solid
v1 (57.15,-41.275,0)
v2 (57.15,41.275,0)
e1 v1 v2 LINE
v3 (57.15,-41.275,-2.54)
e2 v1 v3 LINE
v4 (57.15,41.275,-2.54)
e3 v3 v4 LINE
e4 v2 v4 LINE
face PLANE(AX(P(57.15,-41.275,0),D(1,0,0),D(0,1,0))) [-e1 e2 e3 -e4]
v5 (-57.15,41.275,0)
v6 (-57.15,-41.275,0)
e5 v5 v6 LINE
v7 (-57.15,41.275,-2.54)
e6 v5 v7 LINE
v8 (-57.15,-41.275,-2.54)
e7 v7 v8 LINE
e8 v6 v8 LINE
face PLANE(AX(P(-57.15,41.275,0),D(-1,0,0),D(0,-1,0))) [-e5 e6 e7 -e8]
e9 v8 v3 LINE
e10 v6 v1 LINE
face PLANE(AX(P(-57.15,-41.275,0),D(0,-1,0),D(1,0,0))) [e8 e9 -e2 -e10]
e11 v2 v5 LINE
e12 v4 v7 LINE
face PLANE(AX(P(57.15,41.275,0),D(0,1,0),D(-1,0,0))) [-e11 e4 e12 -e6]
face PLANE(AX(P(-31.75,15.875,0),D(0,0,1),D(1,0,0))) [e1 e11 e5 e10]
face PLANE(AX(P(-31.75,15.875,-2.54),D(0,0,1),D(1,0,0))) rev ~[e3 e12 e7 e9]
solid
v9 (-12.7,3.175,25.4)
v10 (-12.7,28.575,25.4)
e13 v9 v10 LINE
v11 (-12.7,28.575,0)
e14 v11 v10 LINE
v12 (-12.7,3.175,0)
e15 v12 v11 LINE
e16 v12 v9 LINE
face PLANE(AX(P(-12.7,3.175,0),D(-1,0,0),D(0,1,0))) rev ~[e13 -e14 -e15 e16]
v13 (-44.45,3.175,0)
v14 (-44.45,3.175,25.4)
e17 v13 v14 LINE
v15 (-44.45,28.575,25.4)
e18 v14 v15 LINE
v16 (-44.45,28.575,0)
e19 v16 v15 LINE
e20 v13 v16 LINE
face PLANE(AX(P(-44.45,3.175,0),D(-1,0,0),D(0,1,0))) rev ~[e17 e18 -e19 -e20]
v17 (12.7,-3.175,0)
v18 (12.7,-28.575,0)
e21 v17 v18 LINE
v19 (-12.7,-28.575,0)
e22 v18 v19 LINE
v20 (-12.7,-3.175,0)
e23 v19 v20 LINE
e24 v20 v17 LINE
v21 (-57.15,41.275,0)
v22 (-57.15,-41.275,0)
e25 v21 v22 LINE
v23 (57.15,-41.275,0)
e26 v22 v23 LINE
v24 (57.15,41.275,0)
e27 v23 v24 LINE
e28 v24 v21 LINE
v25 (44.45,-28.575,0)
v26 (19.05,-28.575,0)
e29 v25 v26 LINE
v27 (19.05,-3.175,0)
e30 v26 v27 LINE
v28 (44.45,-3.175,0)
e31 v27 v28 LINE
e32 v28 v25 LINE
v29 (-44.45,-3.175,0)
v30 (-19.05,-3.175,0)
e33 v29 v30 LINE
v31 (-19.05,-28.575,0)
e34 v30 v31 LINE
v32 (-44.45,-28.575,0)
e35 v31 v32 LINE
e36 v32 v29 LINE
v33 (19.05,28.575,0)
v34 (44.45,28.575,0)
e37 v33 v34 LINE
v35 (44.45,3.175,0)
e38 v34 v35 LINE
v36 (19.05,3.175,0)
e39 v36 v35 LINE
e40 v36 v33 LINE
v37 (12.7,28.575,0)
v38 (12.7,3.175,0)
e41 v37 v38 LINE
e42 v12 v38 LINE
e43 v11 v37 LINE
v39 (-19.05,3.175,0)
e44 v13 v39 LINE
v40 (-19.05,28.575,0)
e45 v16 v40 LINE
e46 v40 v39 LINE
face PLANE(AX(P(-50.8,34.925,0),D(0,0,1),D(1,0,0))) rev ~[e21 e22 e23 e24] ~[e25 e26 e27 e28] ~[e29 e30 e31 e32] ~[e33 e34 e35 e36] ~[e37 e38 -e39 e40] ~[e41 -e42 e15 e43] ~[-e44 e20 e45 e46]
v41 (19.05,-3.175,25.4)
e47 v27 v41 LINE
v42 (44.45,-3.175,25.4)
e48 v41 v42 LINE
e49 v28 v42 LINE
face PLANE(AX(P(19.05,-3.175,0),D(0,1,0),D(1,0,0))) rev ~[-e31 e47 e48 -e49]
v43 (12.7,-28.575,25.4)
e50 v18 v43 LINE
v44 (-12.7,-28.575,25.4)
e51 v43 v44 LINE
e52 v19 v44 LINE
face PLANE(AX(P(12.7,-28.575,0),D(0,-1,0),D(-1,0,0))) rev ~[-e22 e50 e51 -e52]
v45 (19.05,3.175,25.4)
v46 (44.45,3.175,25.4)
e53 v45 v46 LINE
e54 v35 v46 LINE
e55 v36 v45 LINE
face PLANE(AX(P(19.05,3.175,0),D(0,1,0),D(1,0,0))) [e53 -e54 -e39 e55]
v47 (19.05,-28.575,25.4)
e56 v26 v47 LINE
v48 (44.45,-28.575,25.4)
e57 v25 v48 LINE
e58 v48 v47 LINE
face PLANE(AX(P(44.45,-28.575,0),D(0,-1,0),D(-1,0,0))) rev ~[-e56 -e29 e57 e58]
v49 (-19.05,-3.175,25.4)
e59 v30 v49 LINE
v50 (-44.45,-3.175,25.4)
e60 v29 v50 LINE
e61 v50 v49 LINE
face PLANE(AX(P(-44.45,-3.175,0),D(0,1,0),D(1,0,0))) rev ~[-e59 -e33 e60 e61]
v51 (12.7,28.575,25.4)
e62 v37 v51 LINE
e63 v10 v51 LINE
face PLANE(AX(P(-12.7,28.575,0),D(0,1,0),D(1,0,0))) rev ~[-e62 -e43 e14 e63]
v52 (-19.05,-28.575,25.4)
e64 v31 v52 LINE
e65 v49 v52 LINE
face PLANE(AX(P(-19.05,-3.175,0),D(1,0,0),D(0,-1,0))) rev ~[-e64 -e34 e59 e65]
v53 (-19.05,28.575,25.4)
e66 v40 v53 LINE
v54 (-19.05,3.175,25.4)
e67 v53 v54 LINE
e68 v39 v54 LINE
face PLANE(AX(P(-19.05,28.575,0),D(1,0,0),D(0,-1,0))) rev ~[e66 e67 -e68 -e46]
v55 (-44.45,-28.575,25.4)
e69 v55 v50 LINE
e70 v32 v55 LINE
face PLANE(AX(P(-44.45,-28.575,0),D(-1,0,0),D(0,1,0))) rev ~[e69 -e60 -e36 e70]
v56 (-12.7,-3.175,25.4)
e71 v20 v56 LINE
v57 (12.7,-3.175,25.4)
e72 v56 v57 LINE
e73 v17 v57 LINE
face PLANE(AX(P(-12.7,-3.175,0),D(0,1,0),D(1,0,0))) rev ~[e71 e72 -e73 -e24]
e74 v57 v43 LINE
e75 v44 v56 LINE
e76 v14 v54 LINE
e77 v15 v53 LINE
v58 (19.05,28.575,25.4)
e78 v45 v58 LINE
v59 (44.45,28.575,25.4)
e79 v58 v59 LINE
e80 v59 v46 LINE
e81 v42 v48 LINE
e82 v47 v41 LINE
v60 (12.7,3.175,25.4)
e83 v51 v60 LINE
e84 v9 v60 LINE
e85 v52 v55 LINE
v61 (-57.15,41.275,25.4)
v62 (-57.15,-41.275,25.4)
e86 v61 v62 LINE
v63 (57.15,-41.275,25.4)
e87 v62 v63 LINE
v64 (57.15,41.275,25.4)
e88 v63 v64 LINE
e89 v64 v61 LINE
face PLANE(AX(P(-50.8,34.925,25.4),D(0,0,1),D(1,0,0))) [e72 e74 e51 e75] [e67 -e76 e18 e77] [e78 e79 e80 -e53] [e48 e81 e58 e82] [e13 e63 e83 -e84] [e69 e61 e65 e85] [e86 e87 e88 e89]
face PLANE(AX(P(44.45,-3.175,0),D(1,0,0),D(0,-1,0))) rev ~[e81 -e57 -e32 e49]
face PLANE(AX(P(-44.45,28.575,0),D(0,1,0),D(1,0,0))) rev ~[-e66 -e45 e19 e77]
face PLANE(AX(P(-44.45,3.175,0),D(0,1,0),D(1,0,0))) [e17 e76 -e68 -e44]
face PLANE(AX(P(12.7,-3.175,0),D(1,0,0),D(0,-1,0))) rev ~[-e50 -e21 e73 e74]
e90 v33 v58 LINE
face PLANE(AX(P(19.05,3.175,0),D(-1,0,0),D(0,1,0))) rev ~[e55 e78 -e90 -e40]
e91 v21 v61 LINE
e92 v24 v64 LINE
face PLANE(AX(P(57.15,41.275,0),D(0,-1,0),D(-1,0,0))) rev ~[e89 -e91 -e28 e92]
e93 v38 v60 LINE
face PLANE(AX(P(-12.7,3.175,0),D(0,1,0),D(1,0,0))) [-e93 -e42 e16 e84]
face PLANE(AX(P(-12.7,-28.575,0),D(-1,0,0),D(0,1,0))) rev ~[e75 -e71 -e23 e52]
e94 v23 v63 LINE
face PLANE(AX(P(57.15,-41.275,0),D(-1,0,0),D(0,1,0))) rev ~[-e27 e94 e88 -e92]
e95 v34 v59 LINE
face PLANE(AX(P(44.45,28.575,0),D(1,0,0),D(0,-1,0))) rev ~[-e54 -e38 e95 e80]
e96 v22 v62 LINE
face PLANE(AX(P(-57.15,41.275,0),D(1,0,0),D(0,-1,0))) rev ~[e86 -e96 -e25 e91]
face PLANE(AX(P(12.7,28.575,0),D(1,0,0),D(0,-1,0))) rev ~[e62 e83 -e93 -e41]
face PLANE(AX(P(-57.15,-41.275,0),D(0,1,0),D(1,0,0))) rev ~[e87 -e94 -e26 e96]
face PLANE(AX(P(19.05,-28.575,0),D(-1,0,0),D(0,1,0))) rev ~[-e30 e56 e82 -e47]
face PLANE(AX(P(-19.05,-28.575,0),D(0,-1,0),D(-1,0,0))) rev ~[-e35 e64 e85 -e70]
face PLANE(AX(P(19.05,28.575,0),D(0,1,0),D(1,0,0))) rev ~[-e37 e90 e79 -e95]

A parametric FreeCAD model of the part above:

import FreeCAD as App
import Part
import Sketcher

V = App.Vector
Q = App.Units.Quantity


def add_polygon(sketch, points):
    """Adds a closed chain of lines whose ends are joined by coincident constraints."""
    first, n = sketch.GeometryCount, len(points)
    for a, b in zip(points, points[1:] + points[:1]):
        sketch.addGeometry(Part.LineSegment(App.Vector(*a, 0), App.Vector(*b, 0)), False)
    for i in range(n):
        sketch.addConstraint(Sketcher.Constraint("Coincident", first + i, 2, first + (i + 1) % n, 1))

doc = App.newDocument("Part")
body = doc.addObject("PartDesign::Body", "Body")

sketch1 = doc.addObject("Sketcher::SketchObject", "Sketch")
body.addObject(sketch1)
sketch1.AttachmentSupport = (doc.XY_Plane, [""])
sketch1.MapMode = "FlatFace"
add_polygon(sketch1, [(-57.15, 41.275), (-57.15, -41.275), (57.15, -41.275), (57.15, 41.275)])
add_polygon(sketch1, [(44.45, 28.575), (44.45, 3.175), (19.05, 3.175), (19.05, 28.575)])
add_polygon(sketch1, [(44.45, -3.175), (44.45, -28.575), (19.05, -28.575), (19.05, -3.175)])
add_polygon(sketch1, [(12.7, -28.575), (-12.7, -28.575), (-12.7, -3.175), (12.7, -3.175)])
add_polygon(sketch1, [(-12.7, 3.175), (-12.7, 28.575), (12.7, 28.575), (12.7, 3.175)])
add_polygon(sketch1, [(-19.05, -28.575), (-44.45, -28.575), (-44.45, -3.175), (-19.05, -3.175)])
add_polygon(sketch1, [(-44.45, 3.175), (-44.45, 28.575), (-19.05, 28.575), (-19.05, 3.175)])
sketch1.addConstraint(Sketcher.Constraint("Vertical", 0))
sketch1.addConstraint(Sketcher.Constraint("Horizontal", 1))
sketch1.addConstraint(Sketcher.Constraint("Vertical", 2))
sketch1.addConstraint(Sketcher.Constraint("Horizontal", 3))
sketch1.addConstraint(Sketcher.Constraint("Vertical", 4))
sketch1.addConstraint(Sketcher.Constraint("Horizontal", 5))
sketch1.addConstraint(Sketcher.Constraint("Vertical", 6))
sketch1.addConstraint(Sketcher.Constraint("Horizontal", 7))
sketch1.addConstraint(Sketcher.Constraint("Vertical", 8))
sketch1.addConstraint(Sketcher.Constraint("Horizontal", 9))
sketch1.addConstraint(Sketcher.Constraint("Vertical", 10))
sketch1.addConstraint(Sketcher.Constraint("Horizontal", 11))
sketch1.addConstraint(Sketcher.Constraint("Horizontal", 12))
sketch1.addConstraint(Sketcher.Constraint("Vertical", 13))
sketch1.addConstraint(Sketcher.Constraint("Horizontal", 14))
sketch1.addConstraint(Sketcher.Constraint("Vertical", 15))
sketch1.addConstraint(Sketcher.Constraint("Vertical", 16))
sketch1.addConstraint(Sketcher.Constraint("Horizontal", 17))
sketch1.addConstraint(Sketcher.Constraint("Vertical", 18))
sketch1.addConstraint(Sketcher.Constraint("Horizontal", 19))
sketch1.addConstraint(Sketcher.Constraint("Horizontal", 20))
sketch1.addConstraint(Sketcher.Constraint("Vertical", 21))
sketch1.addConstraint(Sketcher.Constraint("Horizontal", 22))
sketch1.addConstraint(Sketcher.Constraint("Vertical", 23))
sketch1.addConstraint(Sketcher.Constraint("Vertical", 24))
sketch1.addConstraint(Sketcher.Constraint("Horizontal", 25))
sketch1.addConstraint(Sketcher.Constraint("Vertical", 26))
sketch1.addConstraint(Sketcher.Constraint("Horizontal", 27))
sketch1.addConstraint(Sketcher.Constraint("Symmetric", 0, 2, 2, 2, -1, 1))
sketch1.addConstraint(Sketcher.Constraint("Symmetric", 15, 2, 16, 2, -1, 1))
sketch1.addConstraint(Sketcher.Constraint("Symmetric", 13, 2, 18, 2, -1, 1))
sketch1.addConstraint(Sketcher.Constraint("Symmetric", 7, 2, 20, 2, -1, 1))
sketch1.addConstraint(Sketcher.Constraint("Symmetric", 5, 2, 22, 2, -1, 1))
sketch1.addConstraint(Sketcher.Constraint("Symmetric", 8, 2, 24, 2, -1, 1))
sketch1.addConstraint(Sketcher.Constraint("Symmetric", 10, 2, 26, 2, -1, 1))
sketch1.addConstraint(Sketcher.Constraint("Symmetric", 8, 2, 20, 2, -2))
sketch1.addConstraint(Sketcher.Constraint("Symmetric", 10, 2, 22, 2, -2))
sketch1.addConstraint(Sketcher.Constraint("Horizontal", 9, 2, 12, 2))
sketch1.addConstraint(Sketcher.Constraint("Horizontal", 11, 2, 13, 2))
sketch1.addConstraint(Sketcher.Constraint("Vertical", 13, 2, 16, 2))
sketch1.addConstraint(Sketcher.Constraint("Equal", 11, 12))
sketch1.addConstraint(Sketcher.Constraint("Equal", 27, 4))
sketch1.addConstraint(Sketcher.Constraint("DistanceX", 5, 2, 5, 1, Q("1 in")))
sketch1.addConstraint(Sketcher.Constraint("DistanceX", 1, 1, 1, 2, Q("4.5 in")))
sketch1.addConstraint(Sketcher.Constraint("DistanceX", 3, 2, 4, 2, Q("4 in")))
sketch1.addConstraint(Sketcher.Constraint("DistanceY", 0, 2, 0, 1, Q("3.25 in")))
sketch1.addConstraint(Sketcher.Constraint("DistanceY", 4, 2, 2, 2, Q("1.5 in")))
pad1 = doc.addObject("PartDesign::Pad", "Pad")
body.addObject(pad1)
pad1.Profile = sketch1
pad1.Length = Q("1 in")
body2 = doc.addObject("PartDesign::Body", "Body001")

sketch2 = doc.addObject("Sketcher::SketchObject", "Sketch001")
body2.addObject(sketch2)
sketch2.AttachmentSupport = (doc.getObject("XY_Plane001"), [""])
sketch2.MapMode = "FlatFace"
add_polygon(sketch2, [(-57.15, -41.275), (57.15, -41.275), (57.15, 41.275), (-57.15, 41.275)])
sketch2.addConstraint(Sketcher.Constraint("Horizontal", 0))
sketch2.addConstraint(Sketcher.Constraint("Vertical", 1))
sketch2.addConstraint(Sketcher.Constraint("Horizontal", 2))
sketch2.addConstraint(Sketcher.Constraint("Vertical", 3))
sketch2.addConstraint(Sketcher.Constraint("Symmetric", 0, 2, 2, 2, -1, 1))
sketch2.addConstraint(Sketcher.Constraint("DistanceX", 0, 1, 0, 2, Q("4.5 in")))
sketch2.addConstraint(Sketcher.Constraint("DistanceY", 1, 1, 1, 2, Q("3.25 in")))
pad2 = doc.addObject("PartDesign::Pad", "Pad001")
body2.addObject(pad2)
pad2.Profile = sketch2
pad2.Length = Q("0.1 in")
pad2.Reversed = True

doc.recompute()
